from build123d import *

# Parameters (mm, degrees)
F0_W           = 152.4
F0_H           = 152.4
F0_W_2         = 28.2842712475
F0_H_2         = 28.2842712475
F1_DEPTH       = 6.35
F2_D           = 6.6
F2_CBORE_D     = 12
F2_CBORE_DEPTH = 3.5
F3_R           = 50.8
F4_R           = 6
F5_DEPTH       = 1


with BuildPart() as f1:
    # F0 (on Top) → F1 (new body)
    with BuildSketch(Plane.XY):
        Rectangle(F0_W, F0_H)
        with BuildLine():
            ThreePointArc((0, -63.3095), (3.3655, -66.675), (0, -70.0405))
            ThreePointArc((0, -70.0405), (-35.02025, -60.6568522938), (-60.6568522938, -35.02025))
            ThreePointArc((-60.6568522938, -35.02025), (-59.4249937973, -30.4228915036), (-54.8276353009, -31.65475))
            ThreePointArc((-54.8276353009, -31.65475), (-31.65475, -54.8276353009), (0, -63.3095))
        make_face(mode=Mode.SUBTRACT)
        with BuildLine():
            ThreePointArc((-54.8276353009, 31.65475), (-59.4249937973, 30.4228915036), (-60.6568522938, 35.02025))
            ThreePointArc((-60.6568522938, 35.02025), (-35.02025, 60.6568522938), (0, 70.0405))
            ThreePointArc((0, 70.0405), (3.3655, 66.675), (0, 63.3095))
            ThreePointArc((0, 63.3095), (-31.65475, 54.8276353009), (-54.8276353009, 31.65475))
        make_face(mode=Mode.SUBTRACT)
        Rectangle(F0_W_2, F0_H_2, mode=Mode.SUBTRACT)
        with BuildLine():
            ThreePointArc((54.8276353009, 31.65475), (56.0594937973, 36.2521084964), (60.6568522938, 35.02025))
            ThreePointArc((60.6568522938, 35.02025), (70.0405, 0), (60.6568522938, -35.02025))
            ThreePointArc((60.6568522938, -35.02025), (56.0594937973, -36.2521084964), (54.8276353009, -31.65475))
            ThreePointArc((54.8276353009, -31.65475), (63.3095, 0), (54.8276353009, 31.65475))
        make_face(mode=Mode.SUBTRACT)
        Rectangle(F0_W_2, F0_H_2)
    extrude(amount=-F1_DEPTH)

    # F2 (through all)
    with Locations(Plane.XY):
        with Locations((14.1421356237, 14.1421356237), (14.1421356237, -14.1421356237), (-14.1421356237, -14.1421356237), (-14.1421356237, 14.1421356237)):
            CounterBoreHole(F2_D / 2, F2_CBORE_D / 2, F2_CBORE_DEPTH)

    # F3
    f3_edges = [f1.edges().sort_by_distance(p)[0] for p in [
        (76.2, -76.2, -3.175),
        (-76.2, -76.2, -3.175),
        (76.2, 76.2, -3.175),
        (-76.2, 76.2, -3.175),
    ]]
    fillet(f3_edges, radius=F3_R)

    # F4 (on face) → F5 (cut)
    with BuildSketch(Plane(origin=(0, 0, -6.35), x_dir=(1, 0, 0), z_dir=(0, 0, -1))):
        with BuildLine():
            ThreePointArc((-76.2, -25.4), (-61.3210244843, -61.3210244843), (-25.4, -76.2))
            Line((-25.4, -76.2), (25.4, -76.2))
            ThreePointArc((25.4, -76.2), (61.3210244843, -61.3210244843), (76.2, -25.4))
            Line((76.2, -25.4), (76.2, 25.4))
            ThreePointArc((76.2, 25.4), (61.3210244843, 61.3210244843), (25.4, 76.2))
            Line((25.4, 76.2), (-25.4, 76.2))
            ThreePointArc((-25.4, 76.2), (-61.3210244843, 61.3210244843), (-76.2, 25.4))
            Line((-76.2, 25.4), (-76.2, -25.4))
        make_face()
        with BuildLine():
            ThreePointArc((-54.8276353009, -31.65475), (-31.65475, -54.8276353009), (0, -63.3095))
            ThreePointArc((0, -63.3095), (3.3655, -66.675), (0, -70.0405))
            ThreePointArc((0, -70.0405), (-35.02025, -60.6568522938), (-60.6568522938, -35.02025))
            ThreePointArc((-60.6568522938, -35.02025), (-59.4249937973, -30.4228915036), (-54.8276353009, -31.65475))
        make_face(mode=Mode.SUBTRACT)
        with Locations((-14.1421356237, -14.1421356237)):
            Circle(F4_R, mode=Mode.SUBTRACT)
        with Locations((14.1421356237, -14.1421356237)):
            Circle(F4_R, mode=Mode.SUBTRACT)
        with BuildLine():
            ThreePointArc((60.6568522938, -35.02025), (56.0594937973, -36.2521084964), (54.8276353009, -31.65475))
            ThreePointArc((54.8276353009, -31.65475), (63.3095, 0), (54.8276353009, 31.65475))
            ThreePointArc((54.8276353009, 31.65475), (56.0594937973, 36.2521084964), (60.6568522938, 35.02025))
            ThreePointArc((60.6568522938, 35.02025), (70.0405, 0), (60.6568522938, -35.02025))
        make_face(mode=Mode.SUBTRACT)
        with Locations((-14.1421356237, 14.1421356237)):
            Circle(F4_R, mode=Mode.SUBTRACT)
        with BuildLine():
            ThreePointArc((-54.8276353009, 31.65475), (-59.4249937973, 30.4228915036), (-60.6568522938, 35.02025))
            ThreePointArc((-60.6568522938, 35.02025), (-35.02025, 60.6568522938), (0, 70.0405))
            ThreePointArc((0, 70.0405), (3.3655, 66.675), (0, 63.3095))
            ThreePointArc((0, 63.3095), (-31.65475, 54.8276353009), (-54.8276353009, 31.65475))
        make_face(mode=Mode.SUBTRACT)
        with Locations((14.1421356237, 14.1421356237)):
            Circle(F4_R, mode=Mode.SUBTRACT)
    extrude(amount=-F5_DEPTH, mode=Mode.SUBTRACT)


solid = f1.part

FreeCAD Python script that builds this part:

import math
import FreeCAD as App
import Part
import Sketcher
from FreeCAD import Vector
Q = App.Units.Quantity


def edges_at(feature, points):
    """Names of the edges that pass closest to the given points."""
    edges = feature.Shape.Edges
    near = lambda p: min(range(len(edges)), key=lambda i: edges[i].distToShape(Part.Vertex(*p))[0])
    return sorted({f"Edge{near(p) + 1}" for p in points})


def add_polygon(sketch, points):
    """Adds a closed chain of lines whose ends are joined by coincident constraints."""
    first, n = sketch.GeometryCount, len(points)
    for a, b in zip(points, points[1:] + points[:1]):
        sketch.addGeometry(Part.LineSegment(App.Vector(*a, 0), App.Vector(*b, 0)), False)
    for i in range(n):
        sketch.addConstraint(Sketcher.Constraint("Coincident", first + i, 2, first + (i + 1) % n, 1))

doc = App.newDocument("Part")
params = doc.addObject("Spreadsheet::Sheet", "Params")
for row, (alias, value) in enumerate([
    ("sketch1_width", "6 in"),
    ("pad1_length", "0.25 in"),
    ("hole_diameter", "6.6 mm"),
    ("hole_cbore_diameter", "12 mm"),
    ("hole_cbore_depth", "3.5 mm"),
    ("fillet_radius", "2 in"),
    ("sketch3_radius", "2 in"),
    ("sketch3_width", "2 in"),
    ("pocket1_length", "1 mm"),
], start=1):
    params.set(f"A{row}", alias)
    params.set(f"B{row}", "=" + value)
    params.setAlias(f"B{row}", alias)

body = doc.addObject("PartDesign::Body", "Body")

# Sketch on XY plane
sketch1 = body.newObject("Sketcher::SketchObject", "Sketch")
sketch1.AttachmentSupport = (doc.getObject("XY_Plane"), [""])
sketch1.MapMode = "FlatFace"
add_polygon(sketch1, [(-76.2, 76.2), (-76.2, -76.2), (76.2, -76.2), (76.2, 76.2)])  # lines 0-3
sketch1.addGeometry(Part.ArcOfCircle(Part.Circle(Vector(0, 0, 0), Vector(0, 0, 1), 63.3), math.radians(-150), math.radians(-90)), False)  # 4
sketch1.addGeometry(Part.ArcOfCircle(Part.Circle(Vector(0, -66.7, 0), Vector(0, 0, 1), 3.4), math.radians(-90), math.radians(90)), False)  # 5
sketch1.addGeometry(Part.ArcOfCircle(Part.Circle(Vector(0, 0, 0), Vector(0, 0, 1), 70), math.radians(-150), math.radians(-90)), False)  # 6
sketch1.addGeometry(Part.ArcOfCircle(Part.Circle(Vector(-57.7, -33.3, 0), Vector(0, 0, 1), 3.4), math.radians(30), math.radians(210)), False)  # 7
sketch1.addGeometry(Part.ArcOfCircle(Part.Circle(Vector(0, 0, 0), Vector(0, 0, 1), 63.3), math.radians(-30), math.radians(30)), False)  # 8
sketch1.addGeometry(Part.ArcOfCircle(Part.Circle(Vector(57.7, 33.3, 0), Vector(0, 0, 1), 3.4), math.radians(30), math.radians(210)), False)  # 9
sketch1.addGeometry(Part.ArcOfCircle(Part.Circle(Vector(0, 0, 0), Vector(0, 0, 1), 70), math.radians(-30), math.radians(30)), False)  # 10
sketch1.addGeometry(Part.ArcOfCircle(Part.Circle(Vector(57.7, -33.3, 0), Vector(0, 0, 1), 3.4), math.radians(150), math.radians(330)), False)  # 11
sketch1.addGeometry(Part.ArcOfCircle(Part.Circle(Vector(0, 0, 0), Vector(0, 0, 1), 63.3), math.radians(90), math.radians(150)), False)  # 12
sketch1.addGeometry(Part.ArcOfCircle(Part.Circle(Vector(-57.7, 33.3, 0), Vector(0, 0, 1), 3.4), math.radians(150), math.radians(330)), False)  # 13
sketch1.addGeometry(Part.ArcOfCircle(Part.Circle(Vector(0, 0, 0), Vector(0, 0, 1), 70), math.radians(90), math.radians(150)), False)  # 14
sketch1.addGeometry(Part.ArcOfCircle(Part.Circle(Vector(0, 66.7, 0), Vector(0, 0, 1), 3.4), math.radians(-90), math.radians(90)), False)  # 15
sketch1.addConstraint(Sketcher.Constraint("Tangent", 4, 2, 5, 2))
sketch1.addConstraint(Sketcher.Constraint("Tangent", 5, 1, 6, 2))
sketch1.addConstraint(Sketcher.Constraint("Tangent", 6, 1, 7, 2))
sketch1.addConstraint(Sketcher.Constraint("Tangent", 7, 1, 4, 1))
sketch1.addConstraint(Sketcher.Constraint("Tangent", 8, 2, 9, 2))
sketch1.addConstraint(Sketcher.Constraint("Tangent", 9, 1, 10, 2))
sketch1.addConstraint(Sketcher.Constraint("Tangent", 10, 1, 11, 2))
sketch1.addConstraint(Sketcher.Constraint("Tangent", 11, 1, 8, 1))
sketch1.addConstraint(Sketcher.Constraint("Tangent", 12, 2, 13, 2))
sketch1.addConstraint(Sketcher.Constraint("Tangent", 13, 1, 14, 2))
sketch1.addConstraint(Sketcher.Constraint("Tangent", 14, 1, 15, 2))
sketch1.addConstraint(Sketcher.Constraint("Tangent", 15, 1, 12, 1))
sketch1.addConstraint(Sketcher.Constraint("Vertical", 0))
sketch1.addConstraint(Sketcher.Constraint("Horizontal", 1))
sketch1.addConstraint(Sketcher.Constraint("Vertical", 2))
sketch1.addConstraint(Sketcher.Constraint("Horizontal", 3))
sketch1.addConstraint(Sketcher.Constraint("Coincident", 4, 3, -1, 1))
sketch1.addConstraint(Sketcher.Constraint("Coincident", 6, 3, -1, 1))
sketch1.addConstraint(Sketcher.Constraint("Coincident", 8, 3, -1, 1))
sketch1.addConstraint(Sketcher.Constraint("Coincident", 10, 3, -1, 1))
sketch1.addConstraint(Sketcher.Constraint("Coincident", 12, 3, -1, 1))
sketch1.addConstraint(Sketcher.Constraint("Coincident", 14, 3, -1, 1))
sketch1.addConstraint(Sketcher.Constraint("Equal", 4, 8))
sketch1.addConstraint(Sketcher.Constraint("Equal", 7, 9))
sketch1.addConstraint(Sketcher.Constraint("Equal", 8, 12))
sketch1.addConstraint(Sketcher.Constraint("Equal", 11, 13))
sketch1.addConstraint(Sketcher.Constraint("Symmetric", 0, 2, 2, 2, -1, 1))
sketch1.addConstraint(Sketcher.Constraint("PointOnObject", 5, 3, -2))
sketch1.addConstraint(Sketcher.Constraint("PointOnObject", 15, 3, -2))
sketch1.addConstraint(Sketcher.Constraint("Horizontal", 7, 3, 11, 3))
sketch1.addConstraint(Sketcher.Constraint("Horizontal", 9, 3, 13, 3))
sketch1.addConstraint(Sketcher.Constraint("Vertical", 9, 3, 11, 3))
sketch1.addConstraint(Sketcher.Constraint("Equal", 3, 0))
sketch1.addConstraint(Sketcher.Constraint("DistanceX", 1, 1, 1, 2, Q("6 in")))
sketch1.addConstraint(Sketcher.Constraint("Radius", 4, Q("2.4925 in")))
sketch1.addConstraint(Sketcher.Constraint("Radius", 5, Q("0.1325 in")))
sketch1.addConstraint(Sketcher.Constraint("DistanceY", 7, 3, -1, 1, Q("1.3125 in")))
sketch1.setExpression("Constraints[37]", "Params.sketch1_width")
pad1 = body.newObject("PartDesign::Pad", "Pad")
pad1.Profile = sketch1
pad1.setExpression("Length", "Params.pad1_length")
pad1.Reversed = True

# Sketch on XY plane
sketch2 = body.newObject("Sketcher::SketchObject", "Sketch001")
sketch2.AttachmentSupport = (doc.getObject("XY_Plane"), [""])
sketch2.MapMode = "FlatFace"
sketch2.addGeometry(Part.Circle(Vector(14.1, 14.1, 0), Vector(0, 0, 1), 3.3), False)
sketch2.addGeometry(Part.Circle(Vector(14.1, -14.1, 0), Vector(0, 0, 1), 3.3), False)
sketch2.addGeometry(Part.Circle(Vector(-14.1, -14.1, 0), Vector(0, 0, 1), 3.3), False)
sketch2.addGeometry(Part.Circle(Vector(-14.1, 14.1, 0), Vector(0, 0, 1), 3.3), False)
sketch2.addConstraint(Sketcher.Constraint("Equal", 0, 1))
sketch2.addConstraint(Sketcher.Constraint("Equal", 1, 2))
sketch2.addConstraint(Sketcher.Constraint("Equal", 2, 3))
sketch2.addConstraint(Sketcher.Constraint("Symmetric", 0, 3, 2, 3, -1, 1))
sketch2.addConstraint(Sketcher.Constraint("Symmetric", 1, 3, 3, 3, -1, 1))
sketch2.addConstraint(Sketcher.Constraint("Symmetric", 1, 3, 2, 3, -2))
sketch2.addConstraint(Sketcher.Constraint("Diameter", 0, 6.6))
sketch2.addConstraint(Sketcher.Constraint("DistanceY", 1, 3, 0, 3, 28.284271))
sketch2.addConstraint(Sketcher.Constraint("DistanceX", 2, 3, 1, 3, 28.284271))
doc.recompute()
hole = body.newObject("PartDesign::Hole", "Hole")
hole.Profile = sketch2
hole.ThreadType = "None"
hole.setExpression("Diameter", "Params.hole_diameter")
hole.DepthType = "ThroughAll"
hole.HoleCutType = "Counterbore"
hole.setExpression("HoleCutDiameter", "Params.hole_cbore_diameter")
hole.setExpression("HoleCutDepth", "Params.hole_cbore_depth")
doc.recompute()

fillet = body.newObject("PartDesign::Fillet", "Fillet")
fillet.Base = (hole, edges_at(hole, [
    (76.2, -76.2, -3.175),
    (-76.2, -76.2, -3.175),
    (76.2, 76.2, -3.175),
    (-76.2, 76.2, -3.175),
]))
fillet.setExpression("Radius", "Params.fillet_radius")

# Sketch on XY plane
sketch3 = body.newObject("Sketcher::SketchObject", "Sketch002")
sketch3.AttachmentSupport = (doc.getObject("XY_Plane"), [""])
sketch3.MapMode = "FlatFace"
sketch3.AttachmentOffset = App.Placement(Vector(0, 0, -0.25 * 25.4), App.Rotation())
sketch3.addGeometry(Part.ArcOfCircle(Part.Circle(Vector(-25.4, 25.4, 0), Vector(0, 0, 1), 50.8), math.radians(90), math.radians(180)), False)
sketch3.addGeometry(Part.LineSegment(Vector(-25.4, 76.2, 0), Vector(25.4, 76.2, 0)), False)
sketch3.addGeometry(Part.ArcOfCircle(Part.Circle(Vector(25.4, 25.4, 0), Vector(0, 0, 1), 50.8), math.radians(0), math.radians(90)), False)
sketch3.addGeometry(Part.LineSegment(Vector(76.2, 25.4, 0), Vector(76.2, -25.4, 0)), False)
sketch3.addGeometry(Part.ArcOfCircle(Part.Circle(Vector(25.4, -25.4, 0), Vector(0, 0, 1), 50.8), math.radians(-90), math.radians(0)), False)
sketch3.addGeometry(Part.LineSegment(Vector(25.4, -76.2, 0), Vector(-25.4, -76.2, 0)), False)
sketch3.addGeometry(Part.ArcOfCircle(Part.Circle(Vector(-25.4, -25.4, 0), Vector(0, 0, 1), 50.8), math.radians(180), math.radians(270)), False)
sketch3.addGeometry(Part.LineSegment(Vector(-76.2, -25.4, 0), Vector(-76.2, 25.4, 0)), False)
sketch3.addGeometry(Part.ArcOfCircle(Part.Circle(Vector(-57.7, 33.3, 0), Vector(0, 0, 1), 3.4), math.radians(150), math.radians(330)), False)
sketch3.addGeometry(Part.ArcOfCircle(Part.Circle(Vector(0, 0, 0), Vector(0, 0, 1), 63.3), math.radians(90), math.radians(150)), False)
sketch3.addGeometry(Part.ArcOfCircle(Part.Circle(Vector(0, 66.7, 0), Vector(0, 0, 1), 3.4), math.radians(-90), math.radians(90)), False)
sketch3.addGeometry(Part.ArcOfCircle(Part.Circle(Vector(0, 0, 0), Vector(0, 0, 1), 70), math.radians(90), math.radians(150)), False)
sketch3.addGeometry(Part.Circle(Vector(-14.1, 14.1, 0), Vector(0, 0, 1), 6), False)
sketch3.addGeometry(Part.Circle(Vector(14.1, 14.1, 0), Vector(0, 0, 1), 6), False)
sketch3.addGeometry(Part.ArcOfCircle(Part.Circle(Vector(0, 0, 0), Vector(0, 0, 1), 70), math.radians(-30), math.radians(30)), False)
sketch3.addGeometry(Part.ArcOfCircle(Part.Circle(Vector(57.7, 33.3, 0), Vector(0, 0, 1), 3.4), math.radians(30), math.radians(210)), False)
sketch3.addGeometry(Part.ArcOfCircle(Part.Circle(Vector(0, 0, 0), Vector(0, 0, 1), 63.3), math.radians(-30), math.radians(30)), False)
sketch3.addGeometry(Part.ArcOfCircle(Part.Circle(Vector(57.7, -33.3, 0), Vector(0, 0, 1), 3.4), math.radians(150), math.radians(330)), False)
sketch3.addGeometry(Part.Circle(Vector(-14.1, -14.1, 0), Vector(0, 0, 1), 6), False)
sketch3.addGeometry(Part.ArcOfCircle(Part.Circle(Vector(0, 0, 0), Vector(0, 0, 1), 63.3), math.radians(-150), math.radians(-90)), False)
sketch3.addGeometry(Part.ArcOfCircle(Part.Circle(Vector(-57.7, -33.3, 0), Vector(0, 0, 1), 3.4), math.radians(30), math.radians(210)), False)
sketch3.addGeometry(Part.ArcOfCircle(Part.Circle(Vector(0, 0, 0), Vector(0, 0, 1), 70), math.radians(-150), math.radians(-90)), False)
sketch3.addGeometry(Part.ArcOfCircle(Part.Circle(Vector(0, -66.7, 0), Vector(0, 0, 1), 3.4), math.radians(-90), math.radians(90)), False)
sketch3.addGeometry(Part.Circle(Vector(14.1, -14.1, 0), Vector(0, 0, 1), 6), False)
sketch3.addConstraint(Sketcher.Constraint("Tangent", 0, 1, 1, 1))
sketch3.addConstraint(Sketcher.Constraint("Tangent", 1, 2, 2, 2))
sketch3.addConstraint(Sketcher.Constraint("Tangent", 2, 1, 3, 1))
sketch3.addConstraint(Sketcher.Constraint("Tangent", 3, 2, 4, 2))
sketch3.addConstraint(Sketcher.Constraint("Tangent", 4, 1, 5, 1))
sketch3.addConstraint(Sketcher.Constraint("Tangent", 5, 2, 6, 2))
sketch3.addConstraint(Sketcher.Constraint("Tangent", 6, 1, 7, 1))
sketch3.addConstraint(Sketcher.Constraint("Tangent", 7, 2, 0, 2))
sketch3.addConstraint(Sketcher.Constraint("Tangent", 8, 2, 9, 2))
sketch3.addConstraint(Sketcher.Constraint("Tangent", 9, 1, 10, 1))
sketch3.addConstraint(Sketcher.Constraint("Tangent", 10, 2, 11, 1))
sketch3.addConstraint(Sketcher.Constraint("Tangent", 11, 2, 8, 1))
sketch3.addConstraint(Sketcher.Constraint("Tangent", 14, 2, 15, 1))
sketch3.addConstraint(Sketcher.Constraint("Tangent", 15, 2, 16, 2))
sketch3.addConstraint(Sketcher.Constraint("Tangent", 16, 1, 17, 1))
sketch3.addConstraint(Sketcher.Constraint("Tangent", 17, 2, 14, 1))
sketch3.addConstraint(Sketcher.Constraint("Tangent", 19, 1, 20, 1))
sketch3.addConstraint(Sketcher.Constraint("Tangent", 20, 2, 21, 1))
sketch3.addConstraint(Sketcher.Constraint("Tangent", 21, 2, 22, 1))
sketch3.addConstraint(Sketcher.Constraint("Tangent", 22, 2, 19, 2))
sketch3.addConstraint(Sketcher.Constraint("Horizontal", 1))
sketch3.addConstraint(Sketcher.Constraint("Vertical", 3))
sketch3.addConstraint(Sketcher.Constraint("Horizontal", 5))
sketch3.addConstraint(Sketcher.Constraint("Vertical", 7))
sketch3.addConstraint(Sketcher.Constraint("Coincident", 9, 3, -1, 1))
sketch3.addConstraint(Sketcher.Constraint("Coincident", 11, 3, -1, 1))
sketch3.addConstraint(Sketcher.Constraint("Coincident", 14, 3, -1, 1))
sketch3.addConstraint(Sketcher.Constraint("Coincident", 16, 3, -1, 1))
sketch3.addConstraint(Sketcher.Constraint("Coincident", 19, 3, -1, 1))
sketch3.addConstraint(Sketcher.Constraint("Coincident", 21, 3, -1, 1))
sketch3.addConstraint(Sketcher.Constraint("Equal", 0, 2))
sketch3.addConstraint(Sketcher.Constraint("Equal", 2, 4))
sketch3.addConstraint(Sketcher.Constraint("Equal", 4, 6))
sketch3.addConstraint(Sketcher.Constraint("Equal", 12, 13))
sketch3.addConstraint(Sketcher.Constraint("Equal", 11, 14))
sketch3.addConstraint(Sketcher.Constraint("Equal", 10, 15))
sketch3.addConstraint(Sketcher.Constraint("Equal", 13, 18))
sketch3.addConstraint(Sketcher.Constraint("Equal", 16, 19))
sketch3.addConstraint(Sketcher.Constraint("Equal", 17, 20))
sketch3.addConstraint(Sketcher.Constraint("Equal", 18, 23))
sketch3.addConstraint(Sketcher.Constraint("Symmetric", 0, 3, 4, 3, -1, 1))
sketch3.addConstraint(Sketcher.Constraint("Symmetric", 13, 3, 18, 3, -1, 1))
sketch3.addConstraint(Sketcher.Constraint("Symmetric", 12, 3, 23, 3, -1, 1))
sketch3.addConstraint(Sketcher.Constraint("Symmetric", 12, 3, 13, 3, -2))
sketch3.addConstraint(Sketcher.Constraint("PointOnObject", 10, 3, -2))
sketch3.addConstraint(Sketcher.Constraint("PointOnObject", 22, 3, -2))
sketch3.addConstraint(Sketcher.Constraint("Horizontal", 8, 3, 15, 3))
sketch3.addConstraint(Sketcher.Constraint("Horizontal", 17, 3, 20, 3))
sketch3.addConstraint(Sketcher.Constraint("Vertical", 15, 3, 17, 3))
sketch3.addConstraint(Sketcher.Constraint("Equal", 5, 3))
sketch3.addConstraint(Sketcher.Constraint("Radius", 0, Q("2 in")))
sketch3.addConstraint(Sketcher.Constraint("DistanceX", 1, 1, 1, 2, Q("2 in")))
sketch3.addConstraint(Sketcher.Constraint("Radius", 8, Q("0.1325 in")))
sketch3.addConstraint(Sketcher.Constraint("Radius", 9, Q("2.4925 in")))
sketch3.addConstraint(Sketcher.Constraint("Diameter", 12, 12.0))
sketch3.addConstraint(Sketcher.Constraint("DistanceY", -1, 1, 8, 3, Q("1.3125 in")))
sketch3.addConstraint(Sketcher.Constraint("DistanceX", 8, 2, 12, 3, 40.6855))
sketch3.addConstraint(Sketcher.Constraint("DistanceY", -1, 1, 12, 3, 14.142136))
sketch3.setExpression("Constraints[50]", "Params.sketch3_radius")
sketch3.setExpression("Constraints[51]", "Params.sketch3_width")
pocket1 = body.newObject("PartDesign::Pocket", "Pocket")
pocket1.Profile = sketch3
pocket1.setExpression("Length", "Params.pocket1_length")
pocket1.Reversed = True

doc.recompute()
